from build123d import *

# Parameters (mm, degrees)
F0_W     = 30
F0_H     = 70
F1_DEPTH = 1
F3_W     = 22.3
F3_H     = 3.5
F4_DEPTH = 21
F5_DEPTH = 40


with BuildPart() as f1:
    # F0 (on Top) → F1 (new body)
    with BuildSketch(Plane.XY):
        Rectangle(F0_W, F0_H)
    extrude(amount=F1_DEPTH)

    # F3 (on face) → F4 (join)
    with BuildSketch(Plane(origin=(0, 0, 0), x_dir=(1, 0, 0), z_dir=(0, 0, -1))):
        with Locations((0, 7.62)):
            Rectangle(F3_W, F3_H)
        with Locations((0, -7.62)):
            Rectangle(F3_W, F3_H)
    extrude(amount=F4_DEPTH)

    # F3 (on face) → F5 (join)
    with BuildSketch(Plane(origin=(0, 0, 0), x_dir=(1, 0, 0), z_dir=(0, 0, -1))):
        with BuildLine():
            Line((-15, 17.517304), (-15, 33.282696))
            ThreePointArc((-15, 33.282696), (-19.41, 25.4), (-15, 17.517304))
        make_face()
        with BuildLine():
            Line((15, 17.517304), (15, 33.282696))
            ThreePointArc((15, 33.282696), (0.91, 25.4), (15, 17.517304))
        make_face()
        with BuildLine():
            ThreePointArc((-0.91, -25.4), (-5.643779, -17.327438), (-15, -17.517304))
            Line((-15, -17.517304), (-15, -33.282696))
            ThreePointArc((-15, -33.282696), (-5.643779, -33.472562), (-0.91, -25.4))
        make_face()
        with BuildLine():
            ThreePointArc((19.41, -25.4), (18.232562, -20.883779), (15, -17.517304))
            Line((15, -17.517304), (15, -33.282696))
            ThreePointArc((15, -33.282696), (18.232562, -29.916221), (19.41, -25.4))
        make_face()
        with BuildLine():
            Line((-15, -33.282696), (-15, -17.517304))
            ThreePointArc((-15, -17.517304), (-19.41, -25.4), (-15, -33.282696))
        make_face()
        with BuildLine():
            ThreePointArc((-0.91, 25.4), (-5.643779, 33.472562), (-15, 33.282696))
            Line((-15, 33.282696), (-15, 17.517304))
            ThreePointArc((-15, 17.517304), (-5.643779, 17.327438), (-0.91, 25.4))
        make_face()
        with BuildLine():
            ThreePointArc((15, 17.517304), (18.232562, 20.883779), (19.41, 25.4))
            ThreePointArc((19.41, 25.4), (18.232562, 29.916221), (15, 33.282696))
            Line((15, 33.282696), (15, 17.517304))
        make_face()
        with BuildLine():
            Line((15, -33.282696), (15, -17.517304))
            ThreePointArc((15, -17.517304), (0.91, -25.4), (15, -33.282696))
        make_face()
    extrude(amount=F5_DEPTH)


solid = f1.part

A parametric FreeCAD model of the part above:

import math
import FreeCAD as App
import Part
import Sketcher


def add_polygon(sketch, points):
    """Adds a closed chain of lines whose ends are joined by coincident constraints."""
    first, n = sketch.GeometryCount, len(points)
    for a, b in zip(points, points[1:] + points[:1]):
        sketch.addGeometry(Part.LineSegment(App.Vector(*a, 0), App.Vector(*b, 0)), False)
    for i in range(n):
        sketch.addConstraint(Sketcher.Constraint("Coincident", first + i, 2, first + (i + 1) % n, 1))

doc = App.newDocument("Part")
body = doc.addObject("PartDesign::Body", "Body")

sketch1 = body.newObject("Sketcher::SketchObject", "Sketch")
sketch1.AttachmentSupport = (doc.getObject("XY_Plane"), [""])
sketch1.MapMode = "FlatFace"
add_polygon(sketch1, [(-15, 35), (-15, -35), (15, -35), (15, 35)])
sketch1.addConstraint([
    Sketcher.Constraint("Vertical", 0),
    Sketcher.Constraint("Horizontal", 1),
    Sketcher.Constraint("Vertical", 2),
    Sketcher.Constraint("Horizontal", 3),
    Sketcher.Constraint("Symmetric", 0, 2, 2, 2, -1, 1),
    Sketcher.Constraint("DistanceX", 1, 1, 1, 2, 30.0),
    Sketcher.Constraint("DistanceY", 0, 2, 0, 1, 70.0),
])
pad1 = body.newObject("PartDesign::Pad", "Pad")
pad1.Profile = sketch1
pad1.Length = 1

sketch2 = body.newObject("Sketcher::SketchObject", "Sketch001")
sketch2.AttachmentSupport = (doc.getObject("XY_Plane"), [""])
sketch2.MapMode = "FlatFace"
add_polygon(sketch2, [(-11.2, -9.4), (-11.2, -5.9), (11.2, -5.9), (11.2, -9.4)])
add_polygon(sketch2, [(-11.2, 5.9), (-11.2, 9.4), (11.2, 9.4), (11.2, 5.9)])
sketch2.addConstraint([
    Sketcher.Constraint("Vertical", 0),
    Sketcher.Constraint("Horizontal", 1),
    Sketcher.Constraint("Vertical", 2),
    Sketcher.Constraint("Horizontal", 3),
    Sketcher.Constraint("Vertical", 4),
    Sketcher.Constraint("Horizontal", 5),
    Sketcher.Constraint("Vertical", 6),
    Sketcher.Constraint("Horizontal", 7),
    Sketcher.Constraint("Symmetric", 2, 2, 4, 2, -1, 1),
    Sketcher.Constraint("Symmetric", 0, 2, 6, 2, -1, 1),
    Sketcher.Constraint("Vertical", 3, 2, 4, 2),
    Sketcher.Constraint("DistanceX", 1, 1, 1, 2, 22.3),
    Sketcher.Constraint("DistanceY", 0, 1, 0, 2, 3.5),
    Sketcher.Constraint("DistanceY", 0, 2, -1, 1, 5.87),
])
pad2 = body.newObject("PartDesign::Pad", "Pad001")
pad2.Profile = sketch2
pad2.Length = 21
pad2.Reversed = True

sketch3 = body.newObject("Sketcher::SketchObject", "Sketch002")
sketch3.AttachmentSupport = (doc.getObject("XY_Plane"), [""])
sketch3.MapMode = "FlatFace"
sketch3.addGeometry([
    Part.ArcOfCircle(Part.Circle(App.Vector(-10, -25, 0), App.Vector(0, 0, 1), 9), math.radians(122), math.radians(238)),
    Part.ArcOfCircle(Part.Circle(App.Vector(-10, -25, 0), App.Vector(0, 0, 1), 9), math.radians(0), math.radians(122)),
    Part.ArcOfCircle(Part.Circle(App.Vector(-10, -25, 0), App.Vector(0, 0, 1), 9), math.radians(-122), math.radians(0)),
    Part.ArcOfCircle(Part.Circle(App.Vector(10, -25, 0), App.Vector(0, 0, 1), 9), math.radians(58), math.radians(302)),
    Part.ArcOfCircle(Part.Circle(App.Vector(10, -25, 0), App.Vector(0, 0, 1), 9), math.radians(0), math.radians(58)),
    Part.ArcOfCircle(Part.Circle(App.Vector(10, -25, 0), App.Vector(0, 0, 1), 9), math.radians(-58), math.radians(0)),
    Part.ArcOfCircle(Part.Circle(App.Vector(-10, 25, 0), App.Vector(0, 0, 1), 9), math.radians(-122), math.radians(0)),
    Part.ArcOfCircle(Part.Circle(App.Vector(-10, 25, 0), App.Vector(0, 0, 1), 9), math.radians(122), math.radians(238)),
    Part.ArcOfCircle(Part.Circle(App.Vector(-10, 25, 0), App.Vector(0, 0, 1), 9), math.radians(0), math.radians(122)),
    Part.ArcOfCircle(Part.Circle(App.Vector(10, 25, 0), App.Vector(0, 0, 1), 9), math.radians(-58), math.radians(0)),
    Part.ArcOfCircle(Part.Circle(App.Vector(10, 25, 0), App.Vector(0, 0, 1), 9), math.radians(58), math.radians(302)),
    Part.ArcOfCircle(Part.Circle(App.Vector(10, 25, 0), App.Vector(0, 0, 1), 9), math.radians(0), math.radians(58)),
], False)
sketch3.addConstraint([
    Sketcher.Constraint("Tangent", 0, 1, 1, 2),
    Sketcher.Constraint("Tangent", 1, 1, 2, 2),
    Sketcher.Constraint("Tangent", 2, 1, 0, 2),
    Sketcher.Constraint("Tangent", 3, 1, 4, 2),
    Sketcher.Constraint("Tangent", 4, 1, 5, 2),
    Sketcher.Constraint("Tangent", 5, 1, 3, 2),
    Sketcher.Constraint("Tangent", 6, 1, 7, 2),
    Sketcher.Constraint("Tangent", 7, 1, 8, 2),
    Sketcher.Constraint("Tangent", 8, 1, 6, 2),
    Sketcher.Constraint("Tangent", 9, 1, 10, 2),
    Sketcher.Constraint("Tangent", 10, 1, 11, 2),
    Sketcher.Constraint("Tangent", 11, 1, 9, 2),
    Sketcher.Constraint("Equal", 2, 3),
    Sketcher.Constraint("Equal", 3, 6),
    Sketcher.Constraint("Equal", 5, 9),
    Sketcher.Constraint("Symmetric", 3, 3, 6, 3, -1, 1),
    Sketcher.Constraint("Symmetric", 0, 3, 9, 3, -1, 1),
    Sketcher.Constraint("Symmetric", 0, 3, 3, 3, -2),
    Sketcher.Constraint("Horizontal", 3, 3, 1, 1),
    Sketcher.Constraint("Horizontal", 0, 1, 3, 1),
    Sketcher.Constraint("Horizontal", 1, 1, 4, 1),
    Sketcher.Constraint("Horizontal", 2, 1, 5, 1),
    Sketcher.Constraint("Horizontal", 10, 3, 8, 1),
    Sketcher.Constraint("Horizontal", 6, 1, 9, 1),
    Sketcher.Constraint("Horizontal", 7, 1, 10, 1),
    Sketcher.Constraint("Horizontal", 8, 1, 11, 1),
    Sketcher.Constraint("Vertical", 0, 1, 2, 1),
    Sketcher.Constraint("Vertical", 2, 1, 6, 1),
    Sketcher.Constraint("Vertical", 6, 1, 7, 1),
    Sketcher.Constraint("Radius", 0, 9.25),
    Sketcher.Constraint("DistanceX", 0, 1, -1, 1, 15.0),
    Sketcher.Constraint("DistanceY", 0, 3, -1, 1, 25.4),
    Sketcher.Constraint("DistanceX", 0, 3, -1, 1, 10.16),
])
pad3 = body.newObject("PartDesign::Pad", "Pad002")
pad3.Profile = sketch3
pad3.Length = 40
pad3.Reversed = True

doc.recompute()
